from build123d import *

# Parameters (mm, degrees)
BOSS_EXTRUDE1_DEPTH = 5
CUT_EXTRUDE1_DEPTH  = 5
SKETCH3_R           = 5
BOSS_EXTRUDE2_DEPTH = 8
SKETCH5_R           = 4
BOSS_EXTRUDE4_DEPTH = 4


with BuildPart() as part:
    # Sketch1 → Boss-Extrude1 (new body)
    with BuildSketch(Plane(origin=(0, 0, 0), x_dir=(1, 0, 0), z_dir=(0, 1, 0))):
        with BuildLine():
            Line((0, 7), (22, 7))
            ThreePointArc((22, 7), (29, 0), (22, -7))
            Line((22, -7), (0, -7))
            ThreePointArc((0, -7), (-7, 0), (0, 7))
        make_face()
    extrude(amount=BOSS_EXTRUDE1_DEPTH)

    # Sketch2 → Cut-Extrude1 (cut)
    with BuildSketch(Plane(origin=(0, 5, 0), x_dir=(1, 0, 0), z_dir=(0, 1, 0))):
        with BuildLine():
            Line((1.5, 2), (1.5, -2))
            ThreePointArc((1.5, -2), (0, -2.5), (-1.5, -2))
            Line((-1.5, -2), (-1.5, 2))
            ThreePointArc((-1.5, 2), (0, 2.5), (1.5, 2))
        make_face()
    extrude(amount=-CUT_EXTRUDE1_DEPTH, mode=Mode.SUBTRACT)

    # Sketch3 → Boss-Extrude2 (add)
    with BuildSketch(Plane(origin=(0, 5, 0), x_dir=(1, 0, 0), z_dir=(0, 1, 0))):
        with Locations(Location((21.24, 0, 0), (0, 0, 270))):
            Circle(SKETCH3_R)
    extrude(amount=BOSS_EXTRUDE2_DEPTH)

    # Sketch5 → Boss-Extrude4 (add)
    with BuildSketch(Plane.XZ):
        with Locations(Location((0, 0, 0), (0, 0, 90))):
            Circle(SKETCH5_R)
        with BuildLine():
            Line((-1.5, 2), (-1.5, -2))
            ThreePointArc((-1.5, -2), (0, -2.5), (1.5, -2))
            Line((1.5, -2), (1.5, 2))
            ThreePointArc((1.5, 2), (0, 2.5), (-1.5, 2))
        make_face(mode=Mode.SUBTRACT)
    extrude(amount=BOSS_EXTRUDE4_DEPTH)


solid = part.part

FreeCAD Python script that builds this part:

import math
import FreeCAD as App
import Part
import Sketcher

doc = App.newDocument("Part")
body = doc.addObject("PartDesign::Body", "Body")

# Sketch on XZ plane
sketch1 = body.newObject("Sketcher::SketchObject", "Sketch")
sketch1.AttachmentSupport = (doc.getObject("XZ_Plane"), [""])
sketch1.MapMode = "FlatFace"
sketch1.addGeometry(Part.LineSegment(App.Vector(22, -7, 0), App.Vector(0, -7, 0)), False)
sketch1.addGeometry(Part.ArcOfCircle(Part.Circle(App.Vector(0, 0, 0), App.Vector(0, 0, 1), 7), math.radians(90), math.radians(270)), False)
sketch1.addGeometry(Part.LineSegment(App.Vector(0, 7, 0), App.Vector(22, 7, 0)), False)
sketch1.addGeometry(Part.ArcOfCircle(Part.Circle(App.Vector(22, 0, 0), App.Vector(0, 0, 1), 7), math.radians(-90), math.radians(90)), False)
sketch1.addConstraint(Sketcher.Constraint("Tangent", 0, 2, 1, 2))
sketch1.addConstraint(Sketcher.Constraint("Tangent", 1, 1, 2, 1))
sketch1.addConstraint(Sketcher.Constraint("Tangent", 2, 2, 3, 2))
sketch1.addConstraint(Sketcher.Constraint("Tangent", 3, 1, 0, 1))
sketch1.addConstraint(Sketcher.Constraint("Horizontal", 0))
sketch1.addConstraint(Sketcher.Constraint("Horizontal", 2))
sketch1.addConstraint(Sketcher.Constraint("Coincident", 1, 3, -1, 1))
sketch1.addConstraint(Sketcher.Constraint("Radius", 1, 7.0))
sketch1.addConstraint(Sketcher.Constraint("DistanceX", 0, 2, 0, 1, 22.0))
pad1 = body.newObject("PartDesign::Pad", "Pad")
pad1.Profile = sketch1
pad1.Length = 5
pad1.Reversed = True

# Sketch on XZ plane
sketch2 = body.newObject("Sketcher::SketchObject", "Sketch001")
sketch2.AttachmentSupport = (doc.getObject("XZ_Plane"), [""])
sketch2.MapMode = "FlatFace"
sketch2.AttachmentOffset = App.Placement(App.Vector(0, 0, -5), App.Rotation())
sketch2.addGeometry(Part.LineSegment(App.Vector(1.5, 2, 0), App.Vector(1.5, -2, 0)), False)
sketch2.addGeometry(Part.ArcOfCircle(Part.Circle(App.Vector(0, 0, 0), App.Vector(0, 0, 1), 2.5), math.radians(-127), math.radians(-53)), False)
sketch2.addGeometry(Part.LineSegment(App.Vector(-1.5, -2, 0), App.Vector(-1.5, 2, 0)), False)
sketch2.addGeometry(Part.ArcOfCircle(Part.Circle(App.Vector(0, 0, 0), App.Vector(0, 0, 1), 2.5), math.radians(53), math.radians(127)), False)
sketch2.addConstraint(Sketcher.Constraint("Coincident", 0, 2, 1, 2))
sketch2.addConstraint(Sketcher.Constraint("Coincident", 1, 1, 2, 1))
sketch2.addConstraint(Sketcher.Constraint("Coincident", 2, 2, 3, 2))
sketch2.addConstraint(Sketcher.Constraint("Coincident", 3, 1, 0, 1))
sketch2.addConstraint(Sketcher.Constraint("Vertical", 0))
sketch2.addConstraint(Sketcher.Constraint("Vertical", 2))
sketch2.addConstraint(Sketcher.Constraint("Coincident", 1, 3, -1, 1))
sketch2.addConstraint(Sketcher.Constraint("Coincident", 3, 3, -1, 1))
sketch2.addConstraint(Sketcher.Constraint("Equal", 1, 3))
sketch2.addConstraint(Sketcher.Constraint("Horizontal", 0, 2, 1, 1))
sketch2.addConstraint(Sketcher.Constraint("Radius", 1, 2.5))
sketch2.addConstraint(Sketcher.Constraint("DistanceY", 0, 2, 0, 1, 4.0))
pocket1 = body.newObject("PartDesign::Pocket", "Pocket")
pocket1.Profile = sketch2
pocket1.Length = 5
pocket1.Reversed = True

# Sketch on XZ plane
sketch3 = body.newObject("Sketcher::SketchObject", "Sketch002")
sketch3.AttachmentSupport = (doc.getObject("XZ_Plane"), [""])
sketch3.MapMode = "FlatFace"
sketch3.AttachmentOffset = App.Placement(App.Vector(0, 0, -5), App.Rotation())
sketch3.addGeometry(Part.Circle(App.Vector(21, 0, 0), App.Vector(0, 0, 1), 5), False)
sketch3.addConstraint(Sketcher.Constraint("PointOnObject", 0, 3, -1))
sketch3.addConstraint(Sketcher.Constraint("Diameter", 0, 10.0))
sketch3.addConstraint(Sketcher.Constraint("DistanceX", -1, 1, 0, 3, 21.24))
pad2 = body.newObject("PartDesign::Pad", "Pad001")
pad2.Profile = sketch3
pad2.Length = 8
pad2.Reversed = True

# Sketch on XZ plane
sketch4 = body.newObject("Sketcher::SketchObject", "Sketch003")
sketch4.AttachmentSupport = (doc.getObject("XZ_Plane"), [""])
sketch4.MapMode = "FlatFace"
sketch4.addGeometry(Part.Circle(App.Vector(0, 0, 0), App.Vector(0, 0, 1), 4), False)
sketch4.addGeometry(Part.LineSegment(App.Vector(-1.5, -2, 0), App.Vector(-1.5, 2, 0)), False)
sketch4.addGeometry(Part.ArcOfCircle(Part.Circle(App.Vector(0, 0, 0), App.Vector(0, 0, 1), 2.5), math.radians(53), math.radians(127)), False)
sketch4.addGeometry(Part.LineSegment(App.Vector(1.5, 2, 0), App.Vector(1.5, -2, 0)), False)
sketch4.addGeometry(Part.ArcOfCircle(Part.Circle(App.Vector(0, 0, 0), App.Vector(0, 0, 1), 2.5), math.radians(-127), math.radians(-53)), False)
sketch4.addConstraint(Sketcher.Constraint("Coincident", 1, 2, 2, 2))
sketch4.addConstraint(Sketcher.Constraint("Coincident", 2, 1, 3, 1))
sketch4.addConstraint(Sketcher.Constraint("Coincident", 3, 2, 4, 2))
sketch4.addConstraint(Sketcher.Constraint("Coincident", 4, 1, 1, 1))
sketch4.addConstraint(Sketcher.Constraint("Vertical", 1))
sketch4.addConstraint(Sketcher.Constraint("Vertical", 3))
sketch4.addConstraint(Sketcher.Constraint("Coincident", 0, 3, -1, 1))
sketch4.addConstraint(Sketcher.Constraint("Coincident", 2, 3, -1, 1))
sketch4.addConstraint(Sketcher.Constraint("Coincident", 4, 3, -1, 1))
sketch4.addConstraint(Sketcher.Constraint("Equal", 2, 4))
sketch4.addConstraint(Sketcher.Constraint("Horizontal", 1, 2, 2, 1))
sketch4.addConstraint(Sketcher.Constraint("Diameter", 0, 8.0))
sketch4.addConstraint(Sketcher.Constraint("Radius", 2, 2.5))
sketch4.addConstraint(Sketcher.Constraint("DistanceY", 1, 1, 1, 2, 4.0))
pad3 = body.newObject("PartDesign::Pad", "Pad002")
pad3.Profile = sketch4
pad3.Length = 4

doc.recompute()
